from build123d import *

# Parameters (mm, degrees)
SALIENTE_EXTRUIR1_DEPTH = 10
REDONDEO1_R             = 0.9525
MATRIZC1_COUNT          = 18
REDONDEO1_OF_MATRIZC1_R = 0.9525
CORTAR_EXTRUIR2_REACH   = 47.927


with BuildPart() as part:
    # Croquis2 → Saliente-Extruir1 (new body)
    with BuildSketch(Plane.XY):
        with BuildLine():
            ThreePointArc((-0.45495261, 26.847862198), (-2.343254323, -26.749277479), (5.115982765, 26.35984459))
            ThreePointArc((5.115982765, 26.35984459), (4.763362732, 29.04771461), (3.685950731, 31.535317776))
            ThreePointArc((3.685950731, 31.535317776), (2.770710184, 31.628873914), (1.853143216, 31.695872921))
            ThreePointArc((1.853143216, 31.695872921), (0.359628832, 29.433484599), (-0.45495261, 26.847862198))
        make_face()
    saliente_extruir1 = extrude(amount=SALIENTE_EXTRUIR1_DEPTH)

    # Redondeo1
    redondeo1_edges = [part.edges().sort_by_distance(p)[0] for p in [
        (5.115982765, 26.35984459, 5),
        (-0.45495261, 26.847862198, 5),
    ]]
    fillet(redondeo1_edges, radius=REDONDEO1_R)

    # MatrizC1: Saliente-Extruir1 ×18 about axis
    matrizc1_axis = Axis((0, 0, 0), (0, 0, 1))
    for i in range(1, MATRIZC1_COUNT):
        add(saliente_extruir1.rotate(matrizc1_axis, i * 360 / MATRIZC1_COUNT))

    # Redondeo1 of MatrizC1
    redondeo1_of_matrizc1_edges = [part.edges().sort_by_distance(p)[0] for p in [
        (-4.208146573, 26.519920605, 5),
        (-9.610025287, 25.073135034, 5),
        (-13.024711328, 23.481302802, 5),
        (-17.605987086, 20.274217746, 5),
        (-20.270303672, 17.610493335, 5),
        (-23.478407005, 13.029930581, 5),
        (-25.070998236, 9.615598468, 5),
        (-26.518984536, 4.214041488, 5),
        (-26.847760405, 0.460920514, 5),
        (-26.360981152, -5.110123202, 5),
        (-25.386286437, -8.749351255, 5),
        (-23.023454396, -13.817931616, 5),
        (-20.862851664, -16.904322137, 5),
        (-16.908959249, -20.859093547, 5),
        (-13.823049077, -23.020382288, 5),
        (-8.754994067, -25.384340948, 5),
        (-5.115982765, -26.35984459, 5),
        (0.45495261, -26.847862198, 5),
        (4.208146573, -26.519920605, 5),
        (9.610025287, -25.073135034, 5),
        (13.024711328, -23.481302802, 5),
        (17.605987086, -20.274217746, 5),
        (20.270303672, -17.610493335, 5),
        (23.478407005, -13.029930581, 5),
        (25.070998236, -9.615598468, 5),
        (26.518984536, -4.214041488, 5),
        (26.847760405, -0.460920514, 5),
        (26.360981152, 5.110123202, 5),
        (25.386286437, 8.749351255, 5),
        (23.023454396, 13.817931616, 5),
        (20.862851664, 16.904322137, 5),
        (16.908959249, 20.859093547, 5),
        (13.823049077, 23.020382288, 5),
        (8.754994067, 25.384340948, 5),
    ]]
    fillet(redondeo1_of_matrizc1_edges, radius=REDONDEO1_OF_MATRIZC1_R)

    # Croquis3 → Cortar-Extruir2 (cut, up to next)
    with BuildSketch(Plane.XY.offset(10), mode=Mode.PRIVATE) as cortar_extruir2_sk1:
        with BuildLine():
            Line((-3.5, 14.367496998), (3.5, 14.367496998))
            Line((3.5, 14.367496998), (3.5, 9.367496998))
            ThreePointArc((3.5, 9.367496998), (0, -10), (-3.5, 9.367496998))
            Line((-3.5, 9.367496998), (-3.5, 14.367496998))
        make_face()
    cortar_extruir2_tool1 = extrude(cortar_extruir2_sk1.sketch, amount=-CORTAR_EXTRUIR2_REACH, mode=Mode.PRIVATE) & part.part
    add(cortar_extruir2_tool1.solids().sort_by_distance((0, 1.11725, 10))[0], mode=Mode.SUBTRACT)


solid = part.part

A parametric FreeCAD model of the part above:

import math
import FreeCAD as App
import Part
import Sketcher


def edges_at(feature, points):
    """Names of the edges that pass closest to the given points."""
    edges = feature.Shape.Edges
    near = lambda p: min(range(len(edges)), key=lambda i: edges[i].distToShape(Part.Vertex(*p))[0])
    return sorted({f"Edge{near(p) + 1}" for p in points})

doc = App.newDocument("Part")
body = doc.addObject("PartDesign::Body", "Body")

# Sketch on XY plane
sketch1 = doc.addObject("Sketcher::SketchObject", "Sketch")
body.addObject(sketch1)
sketch1.AttachmentSupport = (doc.XY_Plane, [""])
sketch1.MapMode = "FlatFace"
sketch1.addGeometry([
    Part.ArcOfCircle(Part.Circle(App.Vector(0, 0, 0), App.Vector(0, 0, 1), 26.9), math.radians(91), math.radians(439)),
    Part.ArcOfCircle(Part.Circle(App.Vector(-4.7, 26.4, 0), App.Vector(0, 0, 1), 9.8), math.radians(0), math.radians(31)),
    Part.ArcOfCircle(Part.Circle(App.Vector(0, 0, 0), App.Vector(0, 0, 1), 31.8), math.radians(83.33), math.radians(86.65)),
    Part.ArcOfCircle(Part.Circle(App.Vector(9.2, 25.2, 0), App.Vector(0, 0, 1), 9.8), math.radians(139), math.radians(170)),
], False)
sketch1.addConstraint([
    Sketcher.Constraint("Coincident", 0, 2, 1, 1),
    Sketcher.Constraint("Coincident", 1, 2, 2, 1),
    Sketcher.Constraint("Coincident", 2, 2, 3, 1),
    Sketcher.Constraint("Coincident", 3, 2, 0, 1),
    Sketcher.Constraint("Coincident", 0, 3, -1, 1),
    Sketcher.Constraint("Coincident", 2, 3, -1, 1),
    Sketcher.Constraint("Equal", 1, 3),
    Sketcher.Constraint("Radius", 2, 31.750001),
    Sketcher.Constraint("Radius", 0, 26.851717),
    Sketcher.Constraint("Radius", 1, 9.773226),
    Sketcher.Constraint("DistanceX", 1, 3, 3, 3, 13.840701),
    Sketcher.Constraint("DistanceY", -1, 1, 3, 3, 25.23236),
    Sketcher.Constraint("DistanceX", -1, 1, 1, 2, 3.685951),
    Sketcher.Constraint("DistanceX", 2, 3, 3, 3, 9.183828),
])
pad1 = doc.addObject("PartDesign::Pad", "Pad")
body.addObject(pad1)
pad1.Profile = sketch1
pad1.Length = 10
doc.recompute()

fillet = doc.addObject("PartDesign::Fillet", "Fillet")
body.addObject(fillet)
fillet.Base = (pad1, edges_at(pad1, [(5.116, 26.36, 5), (-0.455, 26.848, 5)]))
fillet.Radius = 0.9525
doc.recompute()

polarpattern = doc.addObject("PartDesign::PolarPattern", "PolarPattern")
body.addObject(polarpattern)
polarpattern.Originals = [pad1]
polarpattern.Axis = (doc.Z_Axis, [""])
polarpattern.Angle = 360
polarpattern.Occurrences = 18
body.Tip = polarpattern
doc.recompute()

fillet2 = doc.addObject("PartDesign::Fillet", "Fillet001")
body.addObject(fillet2)
fillet2.Base = (polarpattern, edges_at(polarpattern, [
    (-4.208, 26.52, 5),
    (-9.61, 25.073, 5),
    (-13.025, 23.481, 5),
    (-17.606, 20.274, 5),
    (-20.27, 17.61, 5),
    (-23.478, 13.03, 5),
    (-25.071, 9.616, 5),
    (-26.519, 4.214, 5),
    (-26.848, 0.461, 5),
    (-26.361, -5.11, 5),
    (-25.386, -8.749, 5),
    (-23.023, -13.818, 5),
    (-20.863, -16.904, 5),
    (-16.909, -20.859, 5),
    (-13.823, -23.02, 5),
    (-8.755, -25.384, 5),
    (-5.116, -26.36, 5),
    (0.455, -26.848, 5),
    (4.208, -26.52, 5),
    (9.61, -25.073, 5),
    (13.025, -23.481, 5),
    (17.606, -20.274, 5),
    (20.27, -17.61, 5),
    (23.478, -13.03, 5),
    (25.071, -9.616, 5),
    (26.519, -4.214, 5),
    (26.848, -0.461, 5),
    (26.361, 5.11, 5),
    (25.386, 8.749, 5),
    (23.023, 13.818, 5),
    (20.863, 16.904, 5),
    (16.909, 20.859, 5),
    (13.823, 23.02, 5),
    (8.755, 25.384, 5),
]))
fillet2.Radius = 0.9525

# Sketch on XY plane
sketch2 = doc.addObject("Sketcher::SketchObject", "Sketch001")
body.addObject(sketch2)
sketch2.AttachmentSupport = (doc.XY_Plane, [""])
sketch2.MapMode = "FlatFace"
sketch2.AttachmentOffset = App.Placement(App.Vector(0, 0, 10), App.Rotation())
sketch2.addGeometry([
    Part.LineSegment(App.Vector(4, 14, 0), App.Vector(-4, 14, 0)),
    Part.LineSegment(App.Vector(-4, 14, 0), App.Vector(-4, 9, 0)),
    Part.ArcOfCircle(Part.Circle(App.Vector(0, 0, 0), App.Vector(0, 0, 1), 10), math.radians(110), math.radians(430)),
    Part.LineSegment(App.Vector(4, 9, 0), App.Vector(4, 14, 0)),
], False)
sketch2.addConstraint([
    Sketcher.Constraint("Coincident", 0, 2, 1, 1),
    Sketcher.Constraint("Coincident", 1, 2, 2, 1),
    Sketcher.Constraint("Coincident", 2, 2, 3, 1),
    Sketcher.Constraint("Coincident", 3, 2, 0, 1),
    Sketcher.Constraint("Horizontal", 0),
    Sketcher.Constraint("Vertical", 1),
    Sketcher.Constraint("Vertical", 3),
    Sketcher.Constraint("Coincident", 2, 3, -1, 1),
    Sketcher.Constraint("Horizontal", 1, 2, 2, 2),
    Sketcher.Constraint("Radius", 2, 10.0),
    Sketcher.Constraint("DistanceX", 0, 2, 0, 1, 7.0),
    Sketcher.Constraint("DistanceY", 1, 2, 1, 1, 5.0),
])
pocket1 = doc.addObject("PartDesign::Pocket", "Pocket")
body.addObject(pocket1)
pocket1.Profile = sketch2
pocket1.Type = "UpToFirst"

doc.recompute()
